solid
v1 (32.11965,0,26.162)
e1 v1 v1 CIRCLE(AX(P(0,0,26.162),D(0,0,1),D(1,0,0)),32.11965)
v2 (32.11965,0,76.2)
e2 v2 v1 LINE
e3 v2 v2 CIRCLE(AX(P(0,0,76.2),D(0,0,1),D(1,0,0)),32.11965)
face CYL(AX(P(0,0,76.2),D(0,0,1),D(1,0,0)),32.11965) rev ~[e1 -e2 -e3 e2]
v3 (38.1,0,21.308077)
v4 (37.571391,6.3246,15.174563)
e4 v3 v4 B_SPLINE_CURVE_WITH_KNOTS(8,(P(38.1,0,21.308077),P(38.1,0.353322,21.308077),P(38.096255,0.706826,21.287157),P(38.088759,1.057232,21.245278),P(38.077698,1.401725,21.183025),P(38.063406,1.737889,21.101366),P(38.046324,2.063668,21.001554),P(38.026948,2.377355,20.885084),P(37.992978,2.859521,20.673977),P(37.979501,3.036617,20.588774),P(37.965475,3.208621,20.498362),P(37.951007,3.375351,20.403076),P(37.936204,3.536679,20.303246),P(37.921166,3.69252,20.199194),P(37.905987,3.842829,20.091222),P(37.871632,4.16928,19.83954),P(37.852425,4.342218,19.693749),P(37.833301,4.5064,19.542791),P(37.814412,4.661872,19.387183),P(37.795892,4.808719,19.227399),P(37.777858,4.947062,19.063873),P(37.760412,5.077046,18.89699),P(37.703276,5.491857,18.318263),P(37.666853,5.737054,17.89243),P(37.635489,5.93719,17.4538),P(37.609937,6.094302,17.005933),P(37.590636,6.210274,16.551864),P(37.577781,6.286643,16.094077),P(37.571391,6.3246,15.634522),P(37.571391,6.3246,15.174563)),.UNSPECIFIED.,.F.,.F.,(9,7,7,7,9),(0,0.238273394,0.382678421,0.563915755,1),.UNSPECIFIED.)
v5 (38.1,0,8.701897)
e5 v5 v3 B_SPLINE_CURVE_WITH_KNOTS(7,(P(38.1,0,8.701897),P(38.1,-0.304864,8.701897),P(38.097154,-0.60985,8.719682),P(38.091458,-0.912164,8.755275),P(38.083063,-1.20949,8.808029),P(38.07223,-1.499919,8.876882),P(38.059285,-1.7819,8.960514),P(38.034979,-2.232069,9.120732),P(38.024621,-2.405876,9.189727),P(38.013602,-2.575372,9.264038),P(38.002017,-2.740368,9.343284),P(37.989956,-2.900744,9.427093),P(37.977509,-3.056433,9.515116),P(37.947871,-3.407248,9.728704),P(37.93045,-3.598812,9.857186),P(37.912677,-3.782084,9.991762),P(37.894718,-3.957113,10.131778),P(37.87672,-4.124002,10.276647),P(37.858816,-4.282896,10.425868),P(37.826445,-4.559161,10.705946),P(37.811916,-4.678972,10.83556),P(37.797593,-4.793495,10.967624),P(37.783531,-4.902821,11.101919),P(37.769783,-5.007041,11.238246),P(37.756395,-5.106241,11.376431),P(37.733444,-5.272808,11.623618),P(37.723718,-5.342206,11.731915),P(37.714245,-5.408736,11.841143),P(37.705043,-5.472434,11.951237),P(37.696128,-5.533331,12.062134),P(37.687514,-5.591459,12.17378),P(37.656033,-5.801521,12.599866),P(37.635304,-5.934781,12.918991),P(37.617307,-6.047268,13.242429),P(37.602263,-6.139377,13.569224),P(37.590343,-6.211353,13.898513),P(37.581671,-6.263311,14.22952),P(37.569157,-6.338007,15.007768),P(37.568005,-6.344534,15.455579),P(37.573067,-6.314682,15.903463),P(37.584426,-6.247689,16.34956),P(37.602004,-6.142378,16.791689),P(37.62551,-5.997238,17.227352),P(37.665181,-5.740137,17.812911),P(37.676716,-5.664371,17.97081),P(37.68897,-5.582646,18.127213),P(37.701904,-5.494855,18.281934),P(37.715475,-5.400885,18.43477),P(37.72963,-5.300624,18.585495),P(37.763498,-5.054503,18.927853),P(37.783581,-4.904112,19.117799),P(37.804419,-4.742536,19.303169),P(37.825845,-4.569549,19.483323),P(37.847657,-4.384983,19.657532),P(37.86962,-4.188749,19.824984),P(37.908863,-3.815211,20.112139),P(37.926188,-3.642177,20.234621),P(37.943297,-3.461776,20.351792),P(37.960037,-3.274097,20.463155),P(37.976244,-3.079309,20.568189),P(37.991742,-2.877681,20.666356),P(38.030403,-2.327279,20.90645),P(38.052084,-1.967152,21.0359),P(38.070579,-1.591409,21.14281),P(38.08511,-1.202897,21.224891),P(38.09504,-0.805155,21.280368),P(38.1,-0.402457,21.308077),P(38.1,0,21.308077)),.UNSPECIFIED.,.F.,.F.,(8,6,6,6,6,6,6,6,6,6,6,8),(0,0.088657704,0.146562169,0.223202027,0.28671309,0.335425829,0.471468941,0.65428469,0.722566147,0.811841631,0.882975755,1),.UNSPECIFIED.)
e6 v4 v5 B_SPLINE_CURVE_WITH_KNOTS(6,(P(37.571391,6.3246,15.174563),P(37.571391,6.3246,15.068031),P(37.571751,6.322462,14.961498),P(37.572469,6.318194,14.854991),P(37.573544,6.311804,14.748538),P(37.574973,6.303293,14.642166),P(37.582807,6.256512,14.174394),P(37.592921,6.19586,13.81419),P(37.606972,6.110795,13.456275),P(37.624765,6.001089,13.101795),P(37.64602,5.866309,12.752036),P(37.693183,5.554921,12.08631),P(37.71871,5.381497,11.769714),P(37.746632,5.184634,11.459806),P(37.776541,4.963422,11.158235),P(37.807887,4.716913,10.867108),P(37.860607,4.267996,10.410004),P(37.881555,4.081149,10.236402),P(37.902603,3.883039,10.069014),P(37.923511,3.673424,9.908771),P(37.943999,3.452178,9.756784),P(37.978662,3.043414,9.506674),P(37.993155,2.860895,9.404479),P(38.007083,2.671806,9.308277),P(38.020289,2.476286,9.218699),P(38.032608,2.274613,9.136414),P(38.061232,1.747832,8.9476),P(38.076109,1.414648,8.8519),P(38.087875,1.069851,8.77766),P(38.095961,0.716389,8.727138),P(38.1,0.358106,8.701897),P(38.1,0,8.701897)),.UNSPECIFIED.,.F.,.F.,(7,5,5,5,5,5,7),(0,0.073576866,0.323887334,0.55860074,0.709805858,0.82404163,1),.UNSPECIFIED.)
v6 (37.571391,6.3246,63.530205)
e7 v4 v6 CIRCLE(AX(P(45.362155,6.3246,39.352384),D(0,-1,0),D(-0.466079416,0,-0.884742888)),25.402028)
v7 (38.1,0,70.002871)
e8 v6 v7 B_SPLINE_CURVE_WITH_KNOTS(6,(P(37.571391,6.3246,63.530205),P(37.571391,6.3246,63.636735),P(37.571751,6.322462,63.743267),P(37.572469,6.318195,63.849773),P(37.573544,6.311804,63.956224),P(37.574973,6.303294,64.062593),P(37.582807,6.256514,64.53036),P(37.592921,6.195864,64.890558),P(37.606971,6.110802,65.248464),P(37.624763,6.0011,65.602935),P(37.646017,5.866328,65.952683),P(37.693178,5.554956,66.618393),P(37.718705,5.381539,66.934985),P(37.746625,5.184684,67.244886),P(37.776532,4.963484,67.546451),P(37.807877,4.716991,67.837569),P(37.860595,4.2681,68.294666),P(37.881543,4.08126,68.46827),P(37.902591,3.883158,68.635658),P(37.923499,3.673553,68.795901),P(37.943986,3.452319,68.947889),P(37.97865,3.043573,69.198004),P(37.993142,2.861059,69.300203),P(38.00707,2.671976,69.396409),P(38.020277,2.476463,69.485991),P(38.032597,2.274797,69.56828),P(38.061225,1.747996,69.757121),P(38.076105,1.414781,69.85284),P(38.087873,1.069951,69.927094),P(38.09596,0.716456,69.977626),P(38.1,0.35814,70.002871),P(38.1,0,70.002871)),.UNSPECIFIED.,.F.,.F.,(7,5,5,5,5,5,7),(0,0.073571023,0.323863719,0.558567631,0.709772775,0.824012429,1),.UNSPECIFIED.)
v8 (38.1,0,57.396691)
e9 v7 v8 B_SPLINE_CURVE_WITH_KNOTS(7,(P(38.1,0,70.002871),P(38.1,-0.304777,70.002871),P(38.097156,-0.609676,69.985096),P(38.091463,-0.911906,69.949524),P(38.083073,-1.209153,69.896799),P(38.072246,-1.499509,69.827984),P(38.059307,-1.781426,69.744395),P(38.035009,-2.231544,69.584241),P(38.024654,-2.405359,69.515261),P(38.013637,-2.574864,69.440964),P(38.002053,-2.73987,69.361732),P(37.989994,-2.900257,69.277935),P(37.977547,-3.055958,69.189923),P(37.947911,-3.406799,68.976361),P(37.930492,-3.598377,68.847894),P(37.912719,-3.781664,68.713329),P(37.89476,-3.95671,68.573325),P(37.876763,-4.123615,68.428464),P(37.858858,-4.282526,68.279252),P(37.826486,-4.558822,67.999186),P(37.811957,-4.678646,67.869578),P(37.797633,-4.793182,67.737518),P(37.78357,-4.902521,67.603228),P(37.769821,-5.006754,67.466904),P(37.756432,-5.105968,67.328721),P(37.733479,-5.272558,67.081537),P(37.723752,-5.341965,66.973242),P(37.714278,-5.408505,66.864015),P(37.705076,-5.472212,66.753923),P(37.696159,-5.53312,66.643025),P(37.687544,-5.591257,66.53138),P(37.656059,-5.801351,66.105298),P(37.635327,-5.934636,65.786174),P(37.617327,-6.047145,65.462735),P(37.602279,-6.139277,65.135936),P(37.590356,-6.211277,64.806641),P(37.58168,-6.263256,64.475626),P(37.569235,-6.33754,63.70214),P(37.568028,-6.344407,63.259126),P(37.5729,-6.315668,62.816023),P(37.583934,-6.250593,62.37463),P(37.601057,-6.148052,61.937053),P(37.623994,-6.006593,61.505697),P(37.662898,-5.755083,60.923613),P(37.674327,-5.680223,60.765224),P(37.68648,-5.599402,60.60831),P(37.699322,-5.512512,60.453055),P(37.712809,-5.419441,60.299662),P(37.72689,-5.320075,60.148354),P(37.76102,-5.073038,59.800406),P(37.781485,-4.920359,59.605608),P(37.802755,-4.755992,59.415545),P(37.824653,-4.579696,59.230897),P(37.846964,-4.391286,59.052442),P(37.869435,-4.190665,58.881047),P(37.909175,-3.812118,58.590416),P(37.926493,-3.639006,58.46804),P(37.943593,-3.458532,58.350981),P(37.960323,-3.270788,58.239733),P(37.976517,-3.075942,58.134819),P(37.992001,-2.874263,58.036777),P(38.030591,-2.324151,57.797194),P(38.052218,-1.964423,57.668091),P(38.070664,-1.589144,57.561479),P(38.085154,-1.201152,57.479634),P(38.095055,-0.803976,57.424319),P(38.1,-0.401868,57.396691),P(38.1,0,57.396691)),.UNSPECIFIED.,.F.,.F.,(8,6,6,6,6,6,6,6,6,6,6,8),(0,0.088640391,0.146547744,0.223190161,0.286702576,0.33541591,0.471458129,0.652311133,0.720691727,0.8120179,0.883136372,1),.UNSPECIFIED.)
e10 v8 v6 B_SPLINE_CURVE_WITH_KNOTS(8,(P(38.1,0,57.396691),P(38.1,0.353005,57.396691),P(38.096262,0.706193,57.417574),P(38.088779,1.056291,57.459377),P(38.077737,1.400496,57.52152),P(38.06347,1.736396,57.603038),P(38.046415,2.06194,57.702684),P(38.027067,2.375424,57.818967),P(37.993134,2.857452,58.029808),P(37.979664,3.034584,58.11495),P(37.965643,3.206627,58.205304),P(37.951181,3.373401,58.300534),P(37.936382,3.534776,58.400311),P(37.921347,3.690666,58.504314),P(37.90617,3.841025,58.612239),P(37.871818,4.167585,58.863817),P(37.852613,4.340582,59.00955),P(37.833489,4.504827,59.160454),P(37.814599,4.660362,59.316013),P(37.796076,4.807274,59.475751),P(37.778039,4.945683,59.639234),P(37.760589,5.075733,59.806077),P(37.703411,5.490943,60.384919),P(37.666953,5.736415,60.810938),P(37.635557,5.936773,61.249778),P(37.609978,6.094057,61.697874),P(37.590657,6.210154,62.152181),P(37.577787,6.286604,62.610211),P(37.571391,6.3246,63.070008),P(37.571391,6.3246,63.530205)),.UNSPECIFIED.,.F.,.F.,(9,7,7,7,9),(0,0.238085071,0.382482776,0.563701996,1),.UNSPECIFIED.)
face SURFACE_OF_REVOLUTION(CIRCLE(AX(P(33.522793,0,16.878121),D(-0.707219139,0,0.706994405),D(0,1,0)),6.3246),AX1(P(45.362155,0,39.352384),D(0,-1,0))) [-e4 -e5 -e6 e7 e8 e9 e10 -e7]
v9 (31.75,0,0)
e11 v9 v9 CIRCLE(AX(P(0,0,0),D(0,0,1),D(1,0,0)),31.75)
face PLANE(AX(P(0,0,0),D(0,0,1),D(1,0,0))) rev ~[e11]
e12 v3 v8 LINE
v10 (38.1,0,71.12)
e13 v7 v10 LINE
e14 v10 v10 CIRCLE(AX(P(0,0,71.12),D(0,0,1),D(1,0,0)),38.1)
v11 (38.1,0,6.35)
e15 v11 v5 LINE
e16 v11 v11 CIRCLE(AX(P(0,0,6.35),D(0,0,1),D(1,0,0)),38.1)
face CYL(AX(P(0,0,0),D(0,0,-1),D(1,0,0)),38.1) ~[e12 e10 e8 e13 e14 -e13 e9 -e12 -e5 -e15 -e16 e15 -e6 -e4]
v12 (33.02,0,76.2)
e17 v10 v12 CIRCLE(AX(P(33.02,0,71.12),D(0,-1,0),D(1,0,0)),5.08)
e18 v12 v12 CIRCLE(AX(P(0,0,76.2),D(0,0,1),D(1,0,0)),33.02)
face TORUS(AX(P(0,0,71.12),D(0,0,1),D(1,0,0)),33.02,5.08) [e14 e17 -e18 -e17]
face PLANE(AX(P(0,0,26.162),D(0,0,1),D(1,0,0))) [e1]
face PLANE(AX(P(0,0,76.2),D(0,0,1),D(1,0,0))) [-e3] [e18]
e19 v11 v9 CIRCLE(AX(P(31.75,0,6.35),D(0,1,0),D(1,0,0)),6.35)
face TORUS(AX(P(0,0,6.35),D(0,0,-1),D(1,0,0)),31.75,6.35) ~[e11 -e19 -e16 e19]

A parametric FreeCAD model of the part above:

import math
import FreeCAD as App
import Part
import Sketcher
from FreeCAD import Vector
Q = App.Units.Quantity


def edges_at(feature, points):
    """Names of the edges that pass closest to the given points."""
    edges = feature.Shape.Edges
    near = lambda p: min(range(len(edges)), key=lambda i: edges[i].distToShape(Part.Vertex(*p))[0])
    return sorted({f"Edge{near(p) + 1}" for p in points})

doc = App.newDocument("Part")
params = doc.addObject("Spreadsheet::Sheet", "Params")
for row, (alias, value) in enumerate([
    ("sketch1_diameter", "3 in"),
    ("pad1_length", "3 in"),
    ("sketch2_diameter", "0.498 in"),
    ("sketch3_radius", "1 in"),
    ("pocket1_length", "1.97 in"),
    ("fillet_radius", "0.2 in"),
    ("fillet2_radius", "0.25 in"),
], start=1):
    params.set(f"A{row}", alias)
    params.set(f"B{row}", "=" + value)
    params.setAlias(f"B{row}", alias)

body = doc.addObject("PartDesign::Body", "Body")

sketch1 = body.newObject("Sketcher::SketchObject", "Sketch")
sketch1.AttachmentSupport = (doc.getObject("XY_Plane"), [""])
sketch1.MapMode = "FlatFace"
sketch1.addGeometry(Part.Circle(Vector(0, 0, 0), Vector(0, 0, 1), 38), False)
sketch1.addConstraint(Sketcher.Constraint("Coincident", 0, 3, -1, 1))
sketch1.addConstraint(Sketcher.Constraint("Diameter", 0, Q("3 in")))
sketch1.setExpression("Constraints[1]", "Params.sketch1_diameter")
pad1 = body.newObject("PartDesign::Pad", "Pad")
pad1.Profile = sketch1
pad1.setExpression("Length", "Params.pad1_length")

sketch2 = body.newObject("Sketcher::SketchObject", "Sketch001")
sketch2.AttachmentSupport = (doc.getObject("YZ_Plane"), [""])
sketch2.MapMode = "FlatFace"
sketch2.AttachmentOffset = App.Placement(Vector(0, 0, 1.49 * 25.4), App.Rotation())
sketch2.addGeometry(Part.Circle(Vector(0, 64, 0), Vector(0, 0, 1), 6), False)
sketch2.addConstraint(Sketcher.Constraint("PointOnObject", 0, 3, -2))
sketch2.addConstraint(Sketcher.Constraint("Diameter", 0, Q("0.498 in")))
sketch2.addConstraint(Sketcher.Constraint("DistanceY", -1, 1, 0, 3, 63.616976))
sketch2.setExpression("Constraints[1]", "Params.sketch2_diameter")

sketch3 = body.newObject("Sketcher::SketchObject", "Sketch002")
sketch3.AttachmentSupport = (doc.getObject("XZ_Plane"), [""])
sketch3.MapMode = "FlatFace"
sketch3.addGeometry(Part.ArcOfCircle(Part.Circle(Vector(45, 39, 0), Vector(0, 0, 1), 25), math.radians(-118), math.radians(120)), False)
sketch3.addConstraint(Sketcher.Constraint("Radius", 0, Q("1 in")))
sketch3.addConstraint(Sketcher.Constraint("DistanceY", -1, 1, 0, 1, 16.879622))
sketch3.addConstraint(Sketcher.Constraint("DistanceY", -1, 1, 0, 2, 61.435311))
sketch3.addConstraint(Sketcher.Constraint("DistanceX", 0, 1, 0, 3, 11.837861))
sketch3.addConstraint(Sketcher.Constraint("DistanceX", -1, 1, 0, 3, 45.362155))
sketch3.setExpression("Constraints[0]", "Params.sketch3_radius")
doc.recompute()

additivepipe = body.newObject("PartDesign::AdditivePipe", "AdditivePipe")
additivepipe.Profile = sketch2
additivepipe.Spine = (sketch3, ["Edge1"])

sketch4 = body.newObject("Sketcher::SketchObject", "Sketch003")
sketch4.AttachmentSupport = (doc.getObject("XY_Plane"), [""])
sketch4.MapMode = "FlatFace"
sketch4.AttachmentOffset = App.Placement(Vector(0, 0, 3 * 25.4), App.Rotation())
sketch4.addGeometry(Part.Circle(Vector(0, 0, 0), Vector(0, 0, 1), 32), False)
sketch4.addConstraint(Sketcher.Constraint("Coincident", 0, 3, -1, 1))
sketch4.addConstraint(Sketcher.Constraint("Diameter", 0, 64.2393))
pocket1 = body.newObject("PartDesign::Pocket", "Pocket")
pocket1.Profile = sketch4
pocket1.setExpression("Length", "Params.pocket1_length")
doc.recompute()

fillet = body.newObject("PartDesign::Fillet", "Fillet")
fillet.Base = (pocket1, edges_at(pocket1, [(-38.1, 0, 76.2)]))
fillet.setExpression("Radius", "Params.fillet_radius")
doc.recompute()

fillet2 = body.newObject("PartDesign::Fillet", "Fillet001")
fillet2.Base = (fillet, edges_at(fillet, [(-38.1, 0, 0)]))
fillet2.setExpression("Radius", "Params.fillet2_radius")

doc.recompute()
